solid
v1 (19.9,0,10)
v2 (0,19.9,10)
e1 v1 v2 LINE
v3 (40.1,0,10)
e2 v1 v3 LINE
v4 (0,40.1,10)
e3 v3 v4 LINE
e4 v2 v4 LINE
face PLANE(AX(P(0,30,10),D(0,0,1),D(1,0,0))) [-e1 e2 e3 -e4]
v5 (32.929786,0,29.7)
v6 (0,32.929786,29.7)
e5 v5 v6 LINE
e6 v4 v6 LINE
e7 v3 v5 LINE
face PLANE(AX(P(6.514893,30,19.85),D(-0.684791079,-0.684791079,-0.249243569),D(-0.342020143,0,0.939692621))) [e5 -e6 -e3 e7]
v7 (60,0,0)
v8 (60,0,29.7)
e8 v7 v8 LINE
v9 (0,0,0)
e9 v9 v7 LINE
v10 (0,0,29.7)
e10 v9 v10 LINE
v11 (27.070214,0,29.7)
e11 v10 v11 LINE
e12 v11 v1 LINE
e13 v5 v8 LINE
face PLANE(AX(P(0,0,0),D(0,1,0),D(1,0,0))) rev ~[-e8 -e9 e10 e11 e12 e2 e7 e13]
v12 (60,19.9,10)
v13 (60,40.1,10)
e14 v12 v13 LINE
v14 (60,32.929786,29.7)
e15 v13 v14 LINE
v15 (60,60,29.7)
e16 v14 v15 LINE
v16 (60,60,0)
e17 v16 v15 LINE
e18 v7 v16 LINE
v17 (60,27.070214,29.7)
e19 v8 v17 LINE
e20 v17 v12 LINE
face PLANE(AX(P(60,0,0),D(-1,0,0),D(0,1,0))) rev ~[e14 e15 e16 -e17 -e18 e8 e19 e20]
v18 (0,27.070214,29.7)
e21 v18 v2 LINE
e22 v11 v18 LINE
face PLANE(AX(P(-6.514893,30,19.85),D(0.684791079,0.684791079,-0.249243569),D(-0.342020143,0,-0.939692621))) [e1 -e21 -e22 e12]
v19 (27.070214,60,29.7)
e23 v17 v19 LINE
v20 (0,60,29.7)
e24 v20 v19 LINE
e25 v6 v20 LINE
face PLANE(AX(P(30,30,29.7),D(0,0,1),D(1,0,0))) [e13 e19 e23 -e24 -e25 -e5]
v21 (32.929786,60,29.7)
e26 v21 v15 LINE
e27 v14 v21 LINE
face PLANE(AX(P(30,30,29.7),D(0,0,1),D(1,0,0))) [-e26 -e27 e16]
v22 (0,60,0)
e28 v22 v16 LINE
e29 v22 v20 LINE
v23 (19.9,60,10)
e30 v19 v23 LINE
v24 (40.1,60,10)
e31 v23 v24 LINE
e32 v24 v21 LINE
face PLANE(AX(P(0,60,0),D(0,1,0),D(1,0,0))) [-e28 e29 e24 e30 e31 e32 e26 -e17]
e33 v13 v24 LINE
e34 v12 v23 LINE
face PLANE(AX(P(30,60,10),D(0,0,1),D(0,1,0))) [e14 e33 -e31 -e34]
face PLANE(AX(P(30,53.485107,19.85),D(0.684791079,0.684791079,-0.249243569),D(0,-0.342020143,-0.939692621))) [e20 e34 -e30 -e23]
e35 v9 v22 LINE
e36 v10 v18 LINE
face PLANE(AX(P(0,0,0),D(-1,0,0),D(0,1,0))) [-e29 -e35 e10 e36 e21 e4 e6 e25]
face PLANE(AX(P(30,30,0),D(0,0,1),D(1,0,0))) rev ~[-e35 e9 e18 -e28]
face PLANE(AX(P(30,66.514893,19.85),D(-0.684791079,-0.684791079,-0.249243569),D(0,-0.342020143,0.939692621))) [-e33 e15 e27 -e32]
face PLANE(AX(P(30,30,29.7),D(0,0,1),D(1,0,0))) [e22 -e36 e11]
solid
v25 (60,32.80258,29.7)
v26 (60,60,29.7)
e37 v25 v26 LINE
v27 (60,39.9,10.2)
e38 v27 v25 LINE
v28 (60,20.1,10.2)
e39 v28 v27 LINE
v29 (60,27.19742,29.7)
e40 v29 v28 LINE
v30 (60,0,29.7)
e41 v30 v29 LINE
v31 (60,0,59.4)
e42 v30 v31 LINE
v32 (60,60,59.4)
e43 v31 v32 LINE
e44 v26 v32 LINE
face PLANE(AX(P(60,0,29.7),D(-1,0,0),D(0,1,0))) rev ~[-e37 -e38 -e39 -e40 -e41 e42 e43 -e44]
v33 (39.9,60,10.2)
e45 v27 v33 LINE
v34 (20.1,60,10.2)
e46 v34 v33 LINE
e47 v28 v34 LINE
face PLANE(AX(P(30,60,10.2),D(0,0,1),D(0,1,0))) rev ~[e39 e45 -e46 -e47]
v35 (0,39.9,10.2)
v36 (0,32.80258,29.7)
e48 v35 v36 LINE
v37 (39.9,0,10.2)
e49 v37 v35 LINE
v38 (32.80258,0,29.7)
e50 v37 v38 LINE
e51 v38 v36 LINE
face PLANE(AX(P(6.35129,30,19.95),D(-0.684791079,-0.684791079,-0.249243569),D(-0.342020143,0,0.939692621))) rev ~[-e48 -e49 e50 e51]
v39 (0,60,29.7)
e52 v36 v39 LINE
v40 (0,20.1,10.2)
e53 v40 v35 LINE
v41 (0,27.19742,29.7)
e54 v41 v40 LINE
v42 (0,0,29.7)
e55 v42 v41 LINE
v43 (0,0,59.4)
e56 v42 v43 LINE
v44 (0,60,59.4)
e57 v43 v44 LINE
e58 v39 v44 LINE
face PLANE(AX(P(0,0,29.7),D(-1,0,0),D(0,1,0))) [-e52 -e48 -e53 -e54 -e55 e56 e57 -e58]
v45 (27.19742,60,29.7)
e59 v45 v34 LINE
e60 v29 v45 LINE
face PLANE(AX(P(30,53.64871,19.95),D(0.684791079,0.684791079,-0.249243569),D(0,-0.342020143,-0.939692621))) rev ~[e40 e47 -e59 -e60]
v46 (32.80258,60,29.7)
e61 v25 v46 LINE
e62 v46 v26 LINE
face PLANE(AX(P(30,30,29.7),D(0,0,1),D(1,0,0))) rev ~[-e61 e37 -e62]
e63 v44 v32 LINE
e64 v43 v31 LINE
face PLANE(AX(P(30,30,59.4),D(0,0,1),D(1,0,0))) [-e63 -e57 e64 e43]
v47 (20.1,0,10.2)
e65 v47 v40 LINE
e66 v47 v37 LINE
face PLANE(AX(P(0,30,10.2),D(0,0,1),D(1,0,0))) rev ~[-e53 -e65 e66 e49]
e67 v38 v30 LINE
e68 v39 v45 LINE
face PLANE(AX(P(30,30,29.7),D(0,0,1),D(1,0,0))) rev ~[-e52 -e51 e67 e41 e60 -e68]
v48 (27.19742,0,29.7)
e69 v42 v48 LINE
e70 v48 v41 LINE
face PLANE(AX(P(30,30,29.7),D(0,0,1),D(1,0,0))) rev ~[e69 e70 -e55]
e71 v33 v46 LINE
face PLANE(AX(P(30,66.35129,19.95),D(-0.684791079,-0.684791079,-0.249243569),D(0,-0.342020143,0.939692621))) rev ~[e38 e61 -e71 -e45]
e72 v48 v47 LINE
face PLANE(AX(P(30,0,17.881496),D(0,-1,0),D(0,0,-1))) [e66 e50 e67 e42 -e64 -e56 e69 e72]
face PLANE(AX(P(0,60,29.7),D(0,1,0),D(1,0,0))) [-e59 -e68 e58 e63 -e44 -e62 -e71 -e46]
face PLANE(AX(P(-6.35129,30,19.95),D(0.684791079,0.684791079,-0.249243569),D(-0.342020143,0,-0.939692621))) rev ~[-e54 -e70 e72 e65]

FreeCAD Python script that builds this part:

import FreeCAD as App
import Part
import Sketcher
Q = App.Units.Quantity


def add_polygon(sketch, points):
    """Adds a closed chain of lines whose ends are joined by coincident constraints."""
    first, n = sketch.GeometryCount, len(points)
    for a, b in zip(points, points[1:] + points[:1]):
        sketch.addGeometry(Part.LineSegment(App.Vector(*a, 0), App.Vector(*b, 0)), False)
    for i in range(n):
        sketch.addConstraint(Sketcher.Constraint("Coincident", first + i, 2, first + (i + 1) % n, 1))

doc = App.newDocument("Part")
params = doc.addObject("Spreadsheet::Sheet", "Params")
for row, (alias, value) in enumerate([
    ("sketch1_width", "60 mm"),
    ("pad1_length", "29.7 mm"),
    ("sketch2_width", "20.2 mm"),
    ("sketch4_width", "20.2 mm"),
    ("sketch6_width", "60 mm"),
    ("pad2_length", "29.7 mm"),
    ("sketch7_width", "19.8 mm"),
    ("sketch9_width", "19.8 mm"),
    ("sketch11_width", "60 mm"),
], start=1):
    params.set(f"A{row}", alias)
    params.set(f"B{row}", "=" + value)
    params.setAlias(f"B{row}", alias)

body = doc.addObject("PartDesign::Body", "Body")

# Sketch on XY plane
sketch1 = body.newObject("Sketcher::SketchObject", "Sketch")
sketch1.AttachmentSupport = (doc.getObject("XY_Plane"), [""])
sketch1.MapMode = "FlatFace"
add_polygon(sketch1, [(0, 60), (0, 0), (60, 0), (60, 60)])  # lines 0-3
sketch1.addConstraint([
    Sketcher.Constraint("Vertical", 0),
    Sketcher.Constraint("Horizontal", 1),
    Sketcher.Constraint("Vertical", 2),
    Sketcher.Constraint("Horizontal", 3),
    Sketcher.Constraint("Coincident", 0, 2, -1, 1),
    Sketcher.Constraint("Equal", 3, 0),
    Sketcher.Constraint("DistanceX", 1, 1, 1, 2, Q("60 mm")),
])
sketch1.setExpression("Constraints[10]", "Params.sketch1_width")
pad1 = body.newObject("PartDesign::Pad", "Pad")
pad1.Profile = sketch1
pad1.setExpression("Length", "Params.pad1_length")

# Sketch on XZ plane
sketch2 = body.newObject("Sketcher::SketchObject", "Sketch001")
sketch2.AttachmentSupport = (doc.getObject("XZ_Plane"), [""])
sketch2.MapMode = "FlatFace"
add_polygon(sketch2, [(33, 30), (27, 30), (20, 10), (40, 10)])  # lines 0-3
sketch2.addConstraint([
    Sketcher.Constraint("Horizontal", 0),
    Sketcher.Constraint("Horizontal", 2),
    Sketcher.Constraint("Equal", 1, 3),
    Sketcher.Constraint("Angle", 1, Q("-110 deg")),
    Sketcher.Constraint("DistanceX", 2, 1, 2, 2, Q("20.2 mm")),
    Sketcher.Constraint("DistanceY", -1, 1, 1, 2, Q("10 mm")),
    Sketcher.Constraint("DistanceY", -1, 1, 0, 2, Q("29.7 mm")),
    Sketcher.Constraint("DistanceX", -1, 1, 1, 2, Q("19.9 mm")),
])
sketch2.setExpression("Constraints[8]", "Params.sketch2_width")

# Sketch on an angled plane
sketch3 = body.newObject("Sketcher::SketchObject", "Sketch002")
sketch3.Placement = App.Placement(App.Vector(30, 30, 0), App.Rotation(App.Vector(-0.707106781, 0.707106781, 0), App.Vector(0, 0, 0.999999999), App.Vector(0.707106781, 0.707106781, 0), "ZXY"))
sketch3.addGeometry(Part.LineSegment(App.Vector(-42, 30, 0), App.Vector(42, 30, 0)), False)
sketch3.addConstraint([
    Sketcher.Constraint("Horizontal", 0),
    Sketcher.Constraint("DistanceY", -1, 1, 0, 1, Q("29.7 mm")),
    Sketcher.Constraint("DistanceX", 0, 1, 0, 2, Q("84.852814 mm")),
    Sketcher.Constraint("DistanceX", 0, 1, -1, 1, Q("42.426407 mm")),
])
doc.recompute()

subtractivepipe = body.newObject("PartDesign::SubtractivePipe", "SubtractivePipe")
subtractivepipe.Profile = sketch2
subtractivepipe.Spine = (sketch3, ["Edge1"])

# Sketch on YZ plane
sketch4 = body.newObject("Sketcher::SketchObject", "Sketch003")
sketch4.AttachmentSupport = (doc.getObject("YZ_Plane"), [""])
sketch4.MapMode = "FlatFace"
sketch4.AttachmentOffset = App.Placement(App.Vector(0, 0, 60), App.Rotation())
add_polygon(sketch4, [(33, 30), (27, 30), (20, 10), (40, 10)])  # lines 0-3
sketch4.addConstraint([
    Sketcher.Constraint("Horizontal", 0),
    Sketcher.Constraint("Horizontal", 2),
    Sketcher.Constraint("Equal", 1, 3),
    Sketcher.Constraint("Angle", 1, Q("-110 deg")),
    Sketcher.Constraint("DistanceX", 2, 1, 2, 2, Q("20.2 mm")),
    Sketcher.Constraint("DistanceY", -1, 1, 1, 2, Q("10 mm")),
    Sketcher.Constraint("DistanceY", -1, 1, 0, 2, Q("29.7 mm")),
    Sketcher.Constraint("DistanceX", -1, 1, 1, 2, Q("19.9 mm")),
])
sketch4.setExpression("Constraints[8]", "Params.sketch4_width")

# Sketch on an angled plane
sketch5 = body.newObject("Sketcher::SketchObject", "Sketch004")
sketch5.Placement = App.Placement(App.Vector(30, 30, 0), App.Rotation(App.Vector(-0.707106781, 0.707106781, 0), App.Vector(0, 0, 0.999999999), App.Vector(0.707106781, 0.707106781, 0), "ZXY"))
sketch5.addGeometry(Part.LineSegment(App.Vector(-42, 30, 0), App.Vector(42, 30, 0)), False)
sketch5.addConstraint([
    Sketcher.Constraint("Horizontal", 0),
    Sketcher.Constraint("DistanceY", -1, 1, 0, 1, Q("29.7 mm")),
    Sketcher.Constraint("DistanceX", 0, 1, 0, 2, Q("84.852814 mm")),
    Sketcher.Constraint("DistanceX", 0, 1, -1, 1, Q("42.426407 mm")),
])
doc.recompute()

subtractivepipe2 = body.newObject("PartDesign::SubtractivePipe", "SubtractivePipe001")
subtractivepipe2.Profile = sketch4
subtractivepipe2.Spine = (sketch5, ["Edge1"])
body2 = doc.addObject("PartDesign::Body", "Body001")

# Sketch on XY plane
sketch6 = body2.newObject("Sketcher::SketchObject", "Sketch005")
sketch6.AttachmentSupport = (doc.getObject("XY_Plane001"), [""])
sketch6.MapMode = "FlatFace"
sketch6.AttachmentOffset = App.Placement(App.Vector(0, 0, 29.7), App.Rotation())
add_polygon(sketch6, [(0, 60), (0, 0), (60, 0), (60, 60)])  # lines 0-3
sketch6.addConstraint([
    Sketcher.Constraint("Vertical", 0),
    Sketcher.Constraint("Horizontal", 1),
    Sketcher.Constraint("Vertical", 2),
    Sketcher.Constraint("Horizontal", 3),
    Sketcher.Constraint("Coincident", 0, 2, -1, 1),
    Sketcher.Constraint("Equal", 3, 0),
    Sketcher.Constraint("DistanceX", 1, 1, 1, 2, Q("60 mm")),
])
sketch6.setExpression("Constraints[10]", "Params.sketch6_width")
pad2 = body2.newObject("PartDesign::Pad", "Pad001")
pad2.Profile = sketch6
pad2.setExpression("Length", "Params.pad2_length")

# Sketch on YZ plane
sketch7 = body2.newObject("Sketcher::SketchObject", "Sketch006")
sketch7.AttachmentSupport = (doc.getObject("YZ_Plane001"), [""])
sketch7.MapMode = "FlatFace"
sketch7.AttachmentOffset = App.Placement(App.Vector(0, 0, 60), App.Rotation())
add_polygon(sketch7, [(28.8, 37), (28.8, 29.7), (27.2, 29.7), (20.1, 10.2), (39.9, 10.2), (32.8, 29.7), (30.9, 29.7), (30.9, 37)])  # lines 0-7
sketch7.addConstraint([
    Sketcher.Constraint("Vertical", 0),
    Sketcher.Constraint("Horizontal", 1),
    Sketcher.Constraint("Horizontal", 3),
    Sketcher.Constraint("Horizontal", 5),
    Sketcher.Constraint("Vertical", 6),
    Sketcher.Constraint("Horizontal", 7),
    Sketcher.Constraint("Horizontal", 1, 2, 4, 2),
    Sketcher.Constraint("Equal", 2, 4),
    Sketcher.Constraint("Angle", 2, Q("-110 deg")),
    Sketcher.Constraint("DistanceX", 3, 1, 3, 2, Q("19.8 mm")),
    Sketcher.Constraint("DistanceY", -1, 1, 0, 2, Q("29.7 mm")),
    Sketcher.Constraint("DistanceX", -1, 1, 2, 2, Q("20.1 mm")),
    Sketcher.Constraint("DistanceY", -1, 1, 2, 2, Q("10.2 mm")),
    Sketcher.Constraint("DistanceX", 1, 2, 1, 1, Q("1.572821 mm")),
    Sketcher.Constraint("DistanceX", 5, 2, 5, 1, Q("1.933933 mm")),
    Sketcher.Constraint("DistanceY", 0, 2, 0, 1, Q("7.312458 mm")),
])
sketch7.setExpression("Constraints[17]", "Params.sketch7_width")

# Sketch on an angled plane
sketch8 = body2.newObject("Sketcher::SketchObject", "Sketch007")
sketch8.Placement = App.Placement(App.Vector(30, 30, 0), App.Rotation(App.Vector(-0.707106781, 0.707106781, 0), App.Vector(0, 0, 0.999999999), App.Vector(0.707106781, 0.707106781, 0), "ZXY"))
sketch8.addGeometry(Part.LineSegment(App.Vector(-42, 30, 0), App.Vector(42, 30, 0)), False)
sketch8.addConstraint([
    Sketcher.Constraint("Horizontal", 0),
    Sketcher.Constraint("DistanceY", -1, 1, 0, 1, Q("29.7 mm")),
    Sketcher.Constraint("DistanceX", 0, 1, 0, 2, Q("84.852814 mm")),
    Sketcher.Constraint("DistanceX", 0, 1, -1, 1, Q("42.426407 mm")),
])
doc.recompute()

additivepipe = body2.newObject("PartDesign::AdditivePipe", "AdditivePipe")
additivepipe.Profile = sketch7
additivepipe.Spine = (sketch8, ["Edge1"])

# Sketch on XZ plane
sketch9 = body2.newObject("Sketcher::SketchObject", "Sketch008")
sketch9.AttachmentSupport = (doc.getObject("XZ_Plane001"), [""])
sketch9.MapMode = "FlatFace"
add_polygon(sketch9, [(33, 30), (27, 30), (20, 10), (40, 10)])  # lines 0-3
sketch9.addConstraint([
    Sketcher.Constraint("Horizontal", 0),
    Sketcher.Constraint("Horizontal", 2),
    Sketcher.Constraint("Equal", 1, 3),
    Sketcher.Constraint("Angle", 1, Q("-110 deg")),
    Sketcher.Constraint("DistanceX", 2, 1, 2, 2, Q("19.8 mm")),
    Sketcher.Constraint("DistanceY", -1, 1, 0, 2, Q("29.7 mm")),
    Sketcher.Constraint("DistanceX", -1, 1, 1, 2, Q("20.1 mm")),
    Sketcher.Constraint("DistanceY", -1, 1, 1, 2, Q("10.2 mm")),
])
sketch9.setExpression("Constraints[8]", "Params.sketch9_width")

# Sketch on an angled plane
sketch10 = body2.newObject("Sketcher::SketchObject", "Sketch009")
sketch10.Placement = App.Placement(App.Vector(30, 30, 0), App.Rotation(App.Vector(-0.707106781, 0.707106781, 0), App.Vector(0, 0, 0.999999999), App.Vector(0.707106781, 0.707106781, 0), "ZXY"))
sketch10.addGeometry(Part.LineSegment(App.Vector(-42, 30, 0), App.Vector(42, 30, 0)), False)
sketch10.addConstraint([
    Sketcher.Constraint("Horizontal", 0),
    Sketcher.Constraint("DistanceY", -1, 1, 0, 1, Q("29.7 mm")),
    Sketcher.Constraint("DistanceX", 0, 1, 0, 2, Q("84.852814 mm")),
    Sketcher.Constraint("DistanceX", 0, 1, -1, 1, Q("42.426407 mm")),
])
doc.recompute()

additivepipe2 = body2.newObject("PartDesign::AdditivePipe", "AdditivePipe001")
additivepipe2.Profile = sketch9
additivepipe2.Spine = (sketch10, ["Edge1"])

# Sketch on XY plane
sketch11 = body2.newObject("Sketcher::SketchObject", "Sketch010")
sketch11.AttachmentSupport = (doc.getObject("XY_Plane001"), [""])
sketch11.MapMode = "FlatFace"
sketch11.AttachmentOffset = App.Placement(App.Vector(0, 0, 59.4), App.Rotation())
add_polygon(sketch11, [(-99, 0), (0, 0), (0, 60), (60, 60), (60, 121), (-99, 121)])  # lines 0-5
sketch11.addConstraint([
    Sketcher.Constraint("Horizontal", 0),
    Sketcher.Constraint("Vertical", 1),
    Sketcher.Constraint("Horizontal", 2),
    Sketcher.Constraint("Vertical", 3),
    Sketcher.Constraint("Horizontal", 4),
    Sketcher.Constraint("Vertical", 5),
    Sketcher.Constraint("Coincident", 0, 2, -1, 1),
    Sketcher.Constraint("Equal", 2, 1),
    Sketcher.Constraint("DistanceX", 2, 1, 2, 2, Q("60 mm")),
    Sketcher.Constraint("DistanceX", 0, 1, 0, 2, Q("98.990187 mm")),
    Sketcher.Constraint("DistanceY", 3, 1, 3, 2, Q("61.125527 mm")),
])
sketch11.setExpression("Constraints[14]", "Params.sketch11_width")
pocket1 = body2.newObject("PartDesign::Pocket", "Pocket")
pocket1.Profile = sketch11
pocket1.Type = "ThroughAll"

doc.recompute()
